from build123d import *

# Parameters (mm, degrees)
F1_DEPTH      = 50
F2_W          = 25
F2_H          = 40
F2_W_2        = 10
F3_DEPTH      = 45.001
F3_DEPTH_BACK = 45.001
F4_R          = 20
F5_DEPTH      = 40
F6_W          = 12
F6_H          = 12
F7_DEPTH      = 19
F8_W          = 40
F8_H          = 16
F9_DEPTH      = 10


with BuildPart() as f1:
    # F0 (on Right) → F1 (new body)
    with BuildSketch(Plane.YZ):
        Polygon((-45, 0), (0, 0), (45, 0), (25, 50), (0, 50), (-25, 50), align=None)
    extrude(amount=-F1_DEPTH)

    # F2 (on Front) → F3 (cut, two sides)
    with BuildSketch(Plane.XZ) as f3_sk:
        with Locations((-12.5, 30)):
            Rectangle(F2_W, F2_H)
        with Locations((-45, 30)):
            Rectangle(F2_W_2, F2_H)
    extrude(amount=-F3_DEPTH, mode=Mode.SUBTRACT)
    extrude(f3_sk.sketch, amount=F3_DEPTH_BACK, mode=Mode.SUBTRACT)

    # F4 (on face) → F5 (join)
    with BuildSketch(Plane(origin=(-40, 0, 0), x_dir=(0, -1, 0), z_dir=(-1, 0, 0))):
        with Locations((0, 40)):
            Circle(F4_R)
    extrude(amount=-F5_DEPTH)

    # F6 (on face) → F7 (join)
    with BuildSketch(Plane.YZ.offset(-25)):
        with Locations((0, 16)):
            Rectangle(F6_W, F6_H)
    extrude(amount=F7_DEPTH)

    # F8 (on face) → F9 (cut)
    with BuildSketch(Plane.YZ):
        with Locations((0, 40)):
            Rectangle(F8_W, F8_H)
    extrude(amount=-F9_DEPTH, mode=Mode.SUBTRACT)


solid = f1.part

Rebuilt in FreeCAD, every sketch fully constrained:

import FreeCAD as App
import Part
import Sketcher

V = App.Vector

doc = App.newDocument("Part")
params = doc.addObject("Spreadsheet::Sheet", "Params")
for row, (alias, value) in enumerate([
    ("sketch1_width", "90 mm"),
    ("sketch1_width2", "50 mm"),
    ("pad1_length", "50 mm"),
    ("sketch2_width", "25 mm"),
    ("sketch2_width2", "10 mm"),
    ("sketch2_height", "40 mm"),
    ("sketch3_diameter", "40 mm"),
    ("pad2_length", "40 mm"),
    ("sketch4_width", "12 mm"),
    ("pad3_length", "19 mm"),
    ("sketch5_width", "40 mm"),
    ("sketch5_height", "16 mm"),
    ("pocket2_length", "10 mm"),
], start=1):
    params.set(f"A{row}", alias)
    params.set(f"B{row}", "=" + value)
    params.setAlias(f"B{row}", alias)

body = doc.addObject("PartDesign::Body", "Body")

# Sketch on YZ plane
sketch1 = body.newObject("Sketcher::SketchObject", "Sketch")
sketch1.AttachmentSupport = (doc.getObject("YZ_Plane"), [""])
sketch1.MapMode = "FlatFace"
sketch1.addGeometry([
    Part.LineSegment(V(-45, 0, 0), V(45, 0, 0)),
    Part.LineSegment(V(45, 0, 0), V(25, 50, 0)),
    Part.LineSegment(V(25, 50, 0), V(-25, 50, 0)),
    Part.LineSegment(V(-25, 50, 0), V(-45, 0, 0)),
], False)
sketch1.addConstraint([
    Sketcher.Constraint("Coincident", 0, 2, 1, 1),
    Sketcher.Constraint("Coincident", 1, 2, 2, 1),
    Sketcher.Constraint("Coincident", 2, 2, 3, 1),
    Sketcher.Constraint("Coincident", 3, 2, 0, 1),
    Sketcher.Constraint("Horizontal", 0),
    Sketcher.Constraint("Horizontal", 2),
    Sketcher.Constraint("Symmetric", 0, 2, 3, 2, -1, 1),
    Sketcher.Constraint("Equal", 1, 3),
    Sketcher.Constraint("DistanceX", 0, 1, 0, 2, 90.0),
    Sketcher.Constraint("DistanceX", 2, 2, 2, 1, 50.0),
    Sketcher.Constraint("DistanceY", -1, 1, 1, 2, 50.0),
])
sketch1.setExpression("Constraints[8]", "Params.sketch1_width")
sketch1.setExpression("Constraints[9]", "Params.sketch1_width2")
pad1 = body.newObject("PartDesign::Pad", "Pad")
pad1.Profile = sketch1
pad1.setExpression("Length", "Params.pad1_length")
pad1.Reversed = True

# Sketch on XZ plane
sketch2 = body.newObject("Sketcher::SketchObject", "Sketch001")
sketch2.AttachmentSupport = (doc.getObject("XZ_Plane"), [""])
sketch2.MapMode = "FlatFace"
sketch2.addGeometry([
    Part.LineSegment(V(-25, 50, 0), V(-25, 10, 0)),  # 0
    Part.LineSegment(V(-25, 10, 0), V(0, 10, 0)),  # 1
    Part.LineSegment(V(0, 10, 0), V(0, 50, 0)),  # 2
    Part.LineSegment(V(0, 50, 0), V(-25, 50, 0)),  # 3
    Part.LineSegment(V(-50, 50, 0), V(-50, 10, 0)),  # 4
    Part.LineSegment(V(-50, 10, 0), V(-40, 10, 0)),  # 5
    Part.LineSegment(V(-40, 10, 0), V(-40, 50, 0)),  # 6
    Part.LineSegment(V(-40, 50, 0), V(-50, 50, 0)),  # 7
], False)
sketch2.addConstraint([
    Sketcher.Constraint("Coincident", 0, 2, 1, 1),
    Sketcher.Constraint("Coincident", 1, 2, 2, 1),
    Sketcher.Constraint("Coincident", 2, 2, 3, 1),
    Sketcher.Constraint("Coincident", 3, 2, 0, 1),
    Sketcher.Constraint("Coincident", 4, 2, 5, 1),
    Sketcher.Constraint("Coincident", 5, 2, 6, 1),
    Sketcher.Constraint("Coincident", 6, 2, 7, 1),
    Sketcher.Constraint("Coincident", 7, 2, 4, 1),
    Sketcher.Constraint("Vertical", 0),
    Sketcher.Constraint("Horizontal", 1),
    Sketcher.Constraint("Vertical", 2),
    Sketcher.Constraint("Horizontal", 3),
    Sketcher.Constraint("Vertical", 4),
    Sketcher.Constraint("Horizontal", 5),
    Sketcher.Constraint("Vertical", 6),
    Sketcher.Constraint("Horizontal", 7),
    Sketcher.Constraint("PointOnObject", 1, 2, -2),
    Sketcher.Constraint("Horizontal", 1, 2, 4, 2),
    Sketcher.Constraint("Horizontal", 3, 2, 6, 2),
    Sketcher.Constraint("DistanceX", 1, 1, 1, 2, 25.0),
    Sketcher.Constraint("DistanceX", 5, 1, 5, 2, 10.0),
    Sketcher.Constraint("DistanceY", 0, 2, 0, 1, 40.0),
    Sketcher.Constraint("DistanceY", -1, 1, 0, 2, 10.0),
    Sketcher.Constraint("DistanceX", 4, 2, -1, 1, 50.0),
])
sketch2.setExpression("Constraints[19]", "Params.sketch2_width")
sketch2.setExpression("Constraints[20]", "Params.sketch2_width2")
sketch2.setExpression("Constraints[21]", "Params.sketch2_height")
pocket1 = body.newObject("PartDesign::Pocket", "Pocket")
pocket1.Profile = sketch2
pocket1.Type = "ThroughAll"
pocket1.Midplane = True

# Sketch on YZ plane
sketch3 = body.newObject("Sketcher::SketchObject", "Sketch002")
sketch3.AttachmentSupport = (doc.getObject("YZ_Plane"), [""])
sketch3.MapMode = "FlatFace"
sketch3.AttachmentOffset = App.Placement(V(0, 0, -40), App.Rotation())
sketch3.addGeometry(Part.Circle(V(0, 40, 0), V(0, 0, 1), 20), False)
sketch3.addConstraint([
    Sketcher.Constraint("PointOnObject", 0, 3, -2),
    Sketcher.Constraint("Diameter", 0, 40.0),
    Sketcher.Constraint("DistanceY", -1, 1, 0, 3, 40.0),
])
sketch3.setExpression("Constraints[1]", "Params.sketch3_diameter")
pad2 = body.newObject("PartDesign::Pad", "Pad001")
pad2.Profile = sketch3
pad2.setExpression("Length", "Params.pad2_length")

# Sketch on YZ plane
sketch4 = body.newObject("Sketcher::SketchObject", "Sketch003")
sketch4.AttachmentSupport = (doc.getObject("YZ_Plane"), [""])
sketch4.MapMode = "FlatFace"
sketch4.AttachmentOffset = App.Placement(V(0, 0, -25), App.Rotation())
sketch4.addGeometry([
    Part.LineSegment(V(-6, 22, 0), V(-6, 10, 0)),
    Part.LineSegment(V(-6, 10, 0), V(6, 10, 0)),
    Part.LineSegment(V(6, 10, 0), V(6, 22, 0)),
    Part.LineSegment(V(6, 22, 0), V(-6, 22, 0)),
], False)
sketch4.addConstraint([
    Sketcher.Constraint("Coincident", 0, 2, 1, 1),
    Sketcher.Constraint("Coincident", 1, 2, 2, 1),
    Sketcher.Constraint("Coincident", 2, 2, 3, 1),
    Sketcher.Constraint("Coincident", 3, 2, 0, 1),
    Sketcher.Constraint("Vertical", 0),
    Sketcher.Constraint("Horizontal", 1),
    Sketcher.Constraint("Vertical", 2),
    Sketcher.Constraint("Horizontal", 3),
    Sketcher.Constraint("Equal", 3, 0),
    Sketcher.Constraint("DistanceX", 1, 1, 1, 2, 12.0),
    Sketcher.Constraint("DistanceX", 0, 2, -1, 1, 6.0),
    Sketcher.Constraint("DistanceY", -1, 1, 0, 2, 10.0),
])
sketch4.setExpression("Constraints[9]", "Params.sketch4_width")
pad3 = body.newObject("PartDesign::Pad", "Pad002")
pad3.Profile = sketch4
pad3.setExpression("Length", "Params.pad3_length")

# Sketch on YZ plane
sketch5 = body.newObject("Sketcher::SketchObject", "Sketch004")
sketch5.AttachmentSupport = (doc.getObject("YZ_Plane"), [""])
sketch5.MapMode = "FlatFace"
sketch5.addGeometry([
    Part.LineSegment(V(-20, 48, 0), V(-20, 32, 0)),
    Part.LineSegment(V(-20, 32, 0), V(20, 32, 0)),
    Part.LineSegment(V(20, 32, 0), V(20, 48, 0)),
    Part.LineSegment(V(20, 48, 0), V(-20, 48, 0)),
], False)
sketch5.addConstraint([
    Sketcher.Constraint("Coincident", 0, 2, 1, 1),
    Sketcher.Constraint("Coincident", 1, 2, 2, 1),
    Sketcher.Constraint("Coincident", 2, 2, 3, 1),
    Sketcher.Constraint("Coincident", 3, 2, 0, 1),
    Sketcher.Constraint("Vertical", 0),
    Sketcher.Constraint("Horizontal", 1),
    Sketcher.Constraint("Vertical", 2),
    Sketcher.Constraint("Horizontal", 3),
    Sketcher.Constraint("DistanceX", 1, 1, 1, 2, 40.0),
    Sketcher.Constraint("DistanceY", 0, 2, 0, 1, 16.0),
    Sketcher.Constraint("DistanceX", 0, 2, -1, 1, 20.0),
    Sketcher.Constraint("DistanceY", -1, 1, 0, 2, 32.0),
])
sketch5.setExpression("Constraints[8]", "Params.sketch5_width")
sketch5.setExpression("Constraints[9]", "Params.sketch5_height")
pocket2 = body.newObject("PartDesign::Pocket", "Pocket001")
pocket2.Profile = sketch5
pocket2.setExpression("Length", "Params.pocket2_length")

doc.recompute()
